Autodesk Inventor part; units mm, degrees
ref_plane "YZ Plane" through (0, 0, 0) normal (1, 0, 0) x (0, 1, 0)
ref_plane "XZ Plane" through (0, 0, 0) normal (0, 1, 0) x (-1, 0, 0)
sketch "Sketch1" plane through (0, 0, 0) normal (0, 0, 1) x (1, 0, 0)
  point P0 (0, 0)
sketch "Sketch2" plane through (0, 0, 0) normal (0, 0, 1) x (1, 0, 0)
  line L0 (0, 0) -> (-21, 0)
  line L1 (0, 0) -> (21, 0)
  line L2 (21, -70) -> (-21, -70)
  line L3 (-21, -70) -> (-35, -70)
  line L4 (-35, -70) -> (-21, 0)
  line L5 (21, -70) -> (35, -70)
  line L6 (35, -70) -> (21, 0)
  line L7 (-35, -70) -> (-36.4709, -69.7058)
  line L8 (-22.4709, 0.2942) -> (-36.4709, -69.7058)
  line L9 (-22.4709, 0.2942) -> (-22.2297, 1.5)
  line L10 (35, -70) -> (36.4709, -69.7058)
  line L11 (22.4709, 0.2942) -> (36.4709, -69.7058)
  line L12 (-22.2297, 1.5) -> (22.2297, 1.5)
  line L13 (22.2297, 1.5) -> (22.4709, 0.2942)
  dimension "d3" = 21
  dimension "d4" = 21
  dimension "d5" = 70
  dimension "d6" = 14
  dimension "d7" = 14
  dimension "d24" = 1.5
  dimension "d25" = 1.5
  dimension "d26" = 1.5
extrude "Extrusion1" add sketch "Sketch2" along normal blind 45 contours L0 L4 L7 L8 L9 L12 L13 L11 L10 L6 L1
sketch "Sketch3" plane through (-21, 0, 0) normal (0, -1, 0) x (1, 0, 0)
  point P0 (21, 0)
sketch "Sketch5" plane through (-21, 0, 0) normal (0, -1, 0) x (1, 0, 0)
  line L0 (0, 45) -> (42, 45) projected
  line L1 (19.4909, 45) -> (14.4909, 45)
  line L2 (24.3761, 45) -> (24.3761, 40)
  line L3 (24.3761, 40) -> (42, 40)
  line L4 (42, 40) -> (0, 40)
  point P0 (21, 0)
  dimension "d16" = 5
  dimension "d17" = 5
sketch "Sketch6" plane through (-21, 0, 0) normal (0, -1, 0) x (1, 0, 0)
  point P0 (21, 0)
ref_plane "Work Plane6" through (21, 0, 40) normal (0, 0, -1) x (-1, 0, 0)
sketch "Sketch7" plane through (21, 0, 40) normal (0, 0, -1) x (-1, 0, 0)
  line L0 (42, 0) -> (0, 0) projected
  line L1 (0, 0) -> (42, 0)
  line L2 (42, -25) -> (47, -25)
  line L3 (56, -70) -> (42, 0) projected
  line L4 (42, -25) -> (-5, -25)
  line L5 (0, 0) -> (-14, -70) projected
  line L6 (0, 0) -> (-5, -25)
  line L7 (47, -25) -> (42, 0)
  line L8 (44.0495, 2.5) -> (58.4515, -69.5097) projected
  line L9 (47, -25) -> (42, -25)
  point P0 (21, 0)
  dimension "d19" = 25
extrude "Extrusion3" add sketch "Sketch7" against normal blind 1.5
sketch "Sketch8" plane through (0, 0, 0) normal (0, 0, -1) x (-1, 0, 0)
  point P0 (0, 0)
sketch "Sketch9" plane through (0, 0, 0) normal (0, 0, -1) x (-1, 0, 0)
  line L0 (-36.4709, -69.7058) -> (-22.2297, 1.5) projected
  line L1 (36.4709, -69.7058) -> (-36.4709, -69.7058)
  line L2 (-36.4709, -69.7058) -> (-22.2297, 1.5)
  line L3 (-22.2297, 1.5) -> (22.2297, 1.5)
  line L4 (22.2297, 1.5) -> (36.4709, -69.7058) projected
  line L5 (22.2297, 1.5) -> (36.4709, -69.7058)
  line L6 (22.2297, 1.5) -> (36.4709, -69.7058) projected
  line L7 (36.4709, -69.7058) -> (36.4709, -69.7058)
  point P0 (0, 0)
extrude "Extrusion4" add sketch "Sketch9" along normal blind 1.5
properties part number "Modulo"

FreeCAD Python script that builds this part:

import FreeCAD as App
import Part
import Sketcher

V = App.Vector
Q = App.Units.Quantity

doc = App.newDocument("Part")
params = doc.addObject("Spreadsheet::Sheet", "Params")
for row, (alias, value) in enumerate([
    ("sketch1_length", "1.5 mm"),
    ("pad1_length", "45 mm"),
    ("sketch2_width", "42 mm"),
    ("sketch2_width2", "52 mm"),
    ("pad2_length", "1.5 mm"),
    ("pad3_length", "1.5 mm"),
], start=1):
    params.set(f"A{row}", alias)
    params.set(f"B{row}", "=" + value)
    params.setAlias(f"B{row}", alias)

body = doc.addObject("PartDesign::Body", "Body")

# Sketch on XY plane
sketch1 = body.newObject("Sketcher::SketchObject", "Sketch")
sketch1.AttachmentSupport = (doc.getObject("XY_Plane"), [""])
sketch1.MapMode = "FlatFace"
sketch1.addGeometry(Part.LineSegment(V(-21, 0, 0), V(21, 0, 0)), False)
sketch1.addGeometry(Part.LineSegment(V(21, 0, 0), V(35, -70, 0)), False)
sketch1.addGeometry(Part.LineSegment(V(35, -70, 0), V(36.4709, -69.7058, 0)), False)
sketch1.addGeometry(Part.LineSegment(V(36.4709, -69.7058, 0), V(22.4709, 0.2942, 0)), False)
sketch1.addGeometry(Part.LineSegment(V(22.4709, 0.2942, 0), V(22.2297, 1.5, 0)), False)
sketch1.addGeometry(Part.LineSegment(V(22.2297, 1.5, 0), V(-22.2297, 1.5, 0)), False)
sketch1.addGeometry(Part.LineSegment(V(-22.2297, 1.5, 0), V(-22.4709, 0.2942, 0)), False)
sketch1.addGeometry(Part.LineSegment(V(-22.4709, 0.2942, 0), V(-36.4709, -69.7058, 0)), False)
sketch1.addGeometry(Part.LineSegment(V(-36.4709, -69.7058, 0), V(-35, -70, 0)), False)
sketch1.addGeometry(Part.LineSegment(V(-35, -70, 0), V(-21, 0, 0)), False)
sketch1.addConstraint(Sketcher.Constraint("Coincident", 0, 2, 1, 1))
sketch1.addConstraint(Sketcher.Constraint("Coincident", 1, 2, 2, 1))
sketch1.addConstraint(Sketcher.Constraint("Coincident", 2, 2, 3, 1))
sketch1.addConstraint(Sketcher.Constraint("Coincident", 3, 2, 4, 1))
sketch1.addConstraint(Sketcher.Constraint("Coincident", 4, 2, 5, 1))
sketch1.addConstraint(Sketcher.Constraint("Coincident", 5, 2, 6, 1))
sketch1.addConstraint(Sketcher.Constraint("Coincident", 6, 2, 7, 1))
sketch1.addConstraint(Sketcher.Constraint("Coincident", 7, 2, 8, 1))
sketch1.addConstraint(Sketcher.Constraint("Coincident", 8, 2, 9, 1))
sketch1.addConstraint(Sketcher.Constraint("Coincident", 9, 2, 0, 1))
sketch1.addConstraint(Sketcher.Constraint("Horizontal", 0))
sketch1.addConstraint(Sketcher.Constraint("Horizontal", 5))
sketch1.addConstraint(Sketcher.Constraint("Symmetric", 0, 2, 9, 2, -1, 1))
sketch1.addConstraint(Sketcher.Constraint("Symmetric", 3, 2, 6, 2, -2))
sketch1.addConstraint(Sketcher.Constraint("Symmetric", 2, 2, 7, 2, -2))
sketch1.addConstraint(Sketcher.Constraint("Symmetric", 1, 2, 8, 2, -2))
sketch1.addConstraint(Sketcher.Constraint("Perpendicular", 1, 2))
sketch1.addConstraint(Sketcher.Constraint("Perpendicular", 2, 3))
sketch1.addConstraint(Sketcher.Constraint("Parallel", 3, 4))
sketch1.addConstraint(Sketcher.Constraint("Parallel", 6, 7))
sketch1.addConstraint(Sketcher.Constraint("Equal", 1, 3))
sketch1.addConstraint(Sketcher.Constraint("DistanceX", -1, 1, 0, 2, 21.0))
sketch1.addConstraint(Sketcher.Constraint("DistanceY", 1, 2, -1, 1, 70.0))
sketch1.addConstraint(Sketcher.Constraint("DistanceX", 0, 2, 1, 2, 14.0))
sketch1.addConstraint(Sketcher.Constraint("Distance", 2, 1.5))
sketch1.addConstraint(Sketcher.Constraint("DistanceY", -1, 1, 4, 2, 1.5))
sketch1.setExpression("Constraints[24]", "Params.sketch1_length")
pad1 = body.newObject("PartDesign::Pad", "Pad")
pad1.Profile = sketch1
pad1.setExpression("Length", "Params.pad1_length")

# Sketch on XY plane
sketch2 = body.newObject("Sketcher::SketchObject", "Sketch001")
sketch2.AttachmentSupport = (doc.getObject("XY_Plane"), [""])
sketch2.MapMode = "FlatFace"
sketch2.AttachmentOffset = App.Placement(V(0, 0, 40), App.Rotation())
sketch2.addGeometry(Part.LineSegment(V(-26, -25, 0), V(-21, 0, 0)), False)
sketch2.addGeometry(Part.LineSegment(V(-21, 0, 0), V(21, 0, 0)), False)
sketch2.addGeometry(Part.LineSegment(V(21, 0, 0), V(26, -25, 0)), False)
sketch2.addGeometry(Part.LineSegment(V(26, -25, 0), V(-26, -25, 0)), False)
sketch2.addConstraint(Sketcher.Constraint("Coincident", 0, 2, 1, 1))
sketch2.addConstraint(Sketcher.Constraint("Coincident", 1, 2, 2, 1))
sketch2.addConstraint(Sketcher.Constraint("Coincident", 2, 2, 3, 1))
sketch2.addConstraint(Sketcher.Constraint("Coincident", 3, 2, 0, 1))
sketch2.addConstraint(Sketcher.Constraint("Horizontal", 1))
sketch2.addConstraint(Sketcher.Constraint("Horizontal", 3))
sketch2.addConstraint(Sketcher.Constraint("Symmetric", 0, 2, 1, 2, -1, 1))
sketch2.addConstraint(Sketcher.Constraint("Equal", 0, 2))
sketch2.addConstraint(Sketcher.Constraint("DistanceY", 2, 2, -1, 1, 25.0))
sketch2.addConstraint(Sketcher.Constraint("DistanceX", 1, 1, 1, 2, 42.0))
sketch2.addConstraint(Sketcher.Constraint("DistanceX", 3, 2, 3, 1, 52.0))
sketch2.setExpression("Constraints[9]", "Params.sketch2_width")
sketch2.setExpression("Constraints[10]", "Params.sketch2_width2")
pad2 = body.newObject("PartDesign::Pad", "Pad001")
pad2.Profile = sketch2
pad2.setExpression("Length", "Params.pad2_length")

# Sketch on XY plane
sketch3 = body.newObject("Sketcher::SketchObject", "Sketch002")
sketch3.AttachmentSupport = (doc.getObject("XY_Plane"), [""])
sketch3.MapMode = "FlatFace"
sketch3.addGeometry(Part.LineSegment(V(22.2297, 1.5, 0), V(36.4709, -69.7058, 0)), False)
sketch3.addGeometry(Part.LineSegment(V(36.4709, -69.7058, 0), V(-36.4709, -69.7058, 0)), False)
sketch3.addGeometry(Part.LineSegment(V(-36.4709, -69.7058, 0), V(-22.2297, 1.5, 0)), False)
sketch3.addGeometry(Part.LineSegment(V(-22.2297, 1.5, 0), V(22.2297, 1.5, 0)), False)
sketch3.addConstraint(Sketcher.Constraint("Coincident", 0, 2, 1, 1))
sketch3.addConstraint(Sketcher.Constraint("Coincident", 1, 2, 2, 1))
sketch3.addConstraint(Sketcher.Constraint("Coincident", 2, 2, 3, 1))
sketch3.addConstraint(Sketcher.Constraint("Coincident", 3, 2, 0, 1))
sketch3.addConstraint(Sketcher.Constraint("Horizontal", 1))
sketch3.addConstraint(Sketcher.Constraint("Horizontal", 3))
sketch3.addConstraint(Sketcher.Constraint("Equal", 0, 2))
sketch3.addConstraint(Sketcher.Constraint("DistanceY", -1, 1, 2, 2, 1.5))
sketch3.addConstraint(Sketcher.Constraint("Angle", 0, Q("-78.69 deg")))
sketch3.addConstraint(Sketcher.Constraint("Distance", 0, 72.616))
sketch3.addConstraint(Sketcher.Constraint("DistanceX", 1, 2, 1, 1, 72.9418))
sketch3.addConstraint(Sketcher.Constraint("DistanceX", -1, 1, 0, 2, 36.471))
pad3 = body.newObject("PartDesign::Pad", "Pad002")
pad3.Profile = sketch3
pad3.setExpression("Length", "Params.pad3_length")
pad3.Reversed = True

doc.recompute()
